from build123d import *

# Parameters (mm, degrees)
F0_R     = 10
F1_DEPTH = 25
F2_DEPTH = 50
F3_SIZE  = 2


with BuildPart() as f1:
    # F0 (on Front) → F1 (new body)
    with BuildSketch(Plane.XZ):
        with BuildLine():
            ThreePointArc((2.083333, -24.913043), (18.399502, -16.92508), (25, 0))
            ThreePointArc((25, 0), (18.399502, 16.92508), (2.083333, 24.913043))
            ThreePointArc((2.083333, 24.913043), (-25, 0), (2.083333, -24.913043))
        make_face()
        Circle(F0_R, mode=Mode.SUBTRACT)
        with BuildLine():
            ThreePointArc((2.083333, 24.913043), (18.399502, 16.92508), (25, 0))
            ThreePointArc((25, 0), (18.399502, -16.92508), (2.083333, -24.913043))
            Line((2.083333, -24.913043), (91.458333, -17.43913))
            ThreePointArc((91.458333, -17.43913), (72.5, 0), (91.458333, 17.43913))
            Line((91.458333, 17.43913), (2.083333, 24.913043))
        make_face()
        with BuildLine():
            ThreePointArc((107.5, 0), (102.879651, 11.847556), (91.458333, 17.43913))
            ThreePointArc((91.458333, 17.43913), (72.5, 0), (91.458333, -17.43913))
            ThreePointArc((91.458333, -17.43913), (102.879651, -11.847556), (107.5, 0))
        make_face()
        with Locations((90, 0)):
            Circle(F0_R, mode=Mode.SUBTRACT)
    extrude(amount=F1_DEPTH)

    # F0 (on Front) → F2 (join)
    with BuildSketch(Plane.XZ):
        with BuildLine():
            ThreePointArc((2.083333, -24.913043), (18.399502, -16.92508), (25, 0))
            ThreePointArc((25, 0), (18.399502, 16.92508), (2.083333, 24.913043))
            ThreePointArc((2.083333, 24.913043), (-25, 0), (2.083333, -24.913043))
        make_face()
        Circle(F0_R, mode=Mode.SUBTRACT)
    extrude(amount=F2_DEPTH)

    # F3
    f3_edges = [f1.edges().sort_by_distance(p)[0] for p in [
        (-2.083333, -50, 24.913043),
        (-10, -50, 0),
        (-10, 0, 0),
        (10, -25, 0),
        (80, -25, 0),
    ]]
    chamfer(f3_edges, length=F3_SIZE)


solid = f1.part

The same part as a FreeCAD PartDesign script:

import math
import FreeCAD as App
import Part
import Sketcher
from FreeCAD import Vector
Q = App.Units.Quantity


def edges_at(feature, points):
    """Names of the edges that pass closest to the given points."""
    edges = feature.Shape.Edges
    near = lambda p: min(range(len(edges)), key=lambda i: edges[i].distToShape(Part.Vertex(*p))[0])
    return sorted({f"Edge{near(p) + 1}" for p in points})

doc = App.newDocument("Part")
body = doc.addObject("PartDesign::Body", "Body")

# Sketch on XZ plane
sketch1 = body.newObject("Sketcher::SketchObject", "Sketch")
sketch1.AttachmentSupport = (doc.getObject("XZ_Plane"), [""])
sketch1.MapMode = "FlatFace"
sketch1.addGeometry(Part.ArcOfCircle(Part.Circle(Vector(0, 0, 0), Vector(0, 0, 1), 25), math.radians(85), math.radians(275)), False)
sketch1.addGeometry(Part.LineSegment(Vector(2, -25, 0), Vector(91, -17, 0)), False)
sketch1.addGeometry(Part.ArcOfCircle(Part.Circle(Vector(90, 0, 0), Vector(0, 0, 1), 18), math.radians(-85), math.radians(0)), False)
sketch1.addGeometry(Part.ArcOfCircle(Part.Circle(Vector(90, 0, 0), Vector(0, 0, 1), 18), math.radians(0), math.radians(85)), False)
sketch1.addGeometry(Part.LineSegment(Vector(91, 17, 0), Vector(2, 25, 0)), False)
sketch1.addGeometry(Part.Circle(Vector(0, 0, 0), Vector(0, 0, 1), 10), False)
sketch1.addGeometry(Part.Circle(Vector(90, 0, 0), Vector(0, 0, 1), 10), False)
sketch1.addConstraint(Sketcher.Constraint("Tangent", 0, 2, 1, 1))
sketch1.addConstraint(Sketcher.Constraint("Tangent", 1, 2, 2, 1))
sketch1.addConstraint(Sketcher.Constraint("Tangent", 2, 2, 3, 1))
sketch1.addConstraint(Sketcher.Constraint("Tangent", 3, 2, 4, 1))
sketch1.addConstraint(Sketcher.Constraint("Tangent", 4, 2, 0, 1))
sketch1.addConstraint(Sketcher.Constraint("Coincident", 0, 3, -1, 1))
sketch1.addConstraint(Sketcher.Constraint("Coincident", 5, 3, -1, 1))
sketch1.addConstraint(Sketcher.Constraint("Coincident", 6, 3, 2, 3))
sketch1.addConstraint(Sketcher.Constraint("Equal", 2, 3))
sketch1.addConstraint(Sketcher.Constraint("Equal", 5, 6))
sketch1.addConstraint(Sketcher.Constraint("PointOnObject", 2, 3, -1))
sketch1.addConstraint(Sketcher.Constraint("PointOnObject", 2, 2, -1))
sketch1.addConstraint(Sketcher.Constraint("Diameter", 5, Q("20 mm")))
sketch1.addConstraint(Sketcher.Constraint("Radius", 0, Q("25 mm")))
sketch1.addConstraint(Sketcher.Constraint("Radius", 2, Q("17.5 mm")))
sketch1.addConstraint(Sketcher.Constraint("DistanceX", -1, 1, 2, 3, Q("90 mm")))
pad1 = body.newObject("PartDesign::Pad", "Pad")
pad1.Profile = sketch1
pad1.Length = 25

# Sketch on XZ plane
sketch2 = body.newObject("Sketcher::SketchObject", "Sketch001")
sketch2.AttachmentSupport = (doc.getObject("XZ_Plane"), [""])
sketch2.MapMode = "FlatFace"
sketch2.addGeometry(Part.ArcOfCircle(Part.Circle(Vector(0, 0, 0), Vector(0, 0, 1), 25), math.radians(-85), math.radians(0)), False)
sketch2.addGeometry(Part.ArcOfCircle(Part.Circle(Vector(0, 0, 0), Vector(0, 0, 1), 25), math.radians(0), math.radians(85)), False)
sketch2.addGeometry(Part.ArcOfCircle(Part.Circle(Vector(0, 0, 0), Vector(0, 0, 1), 25), math.radians(85), math.radians(275)), False)
sketch2.addGeometry(Part.Circle(Vector(0, 0, 0), Vector(0, 0, 1), 10), False)
sketch2.addConstraint(Sketcher.Constraint("Tangent", 0, 2, 1, 1))
sketch2.addConstraint(Sketcher.Constraint("Tangent", 1, 2, 2, 1))
sketch2.addConstraint(Sketcher.Constraint("Tangent", 2, 2, 0, 1))
sketch2.addConstraint(Sketcher.Constraint("Coincident", 0, 3, -1, 1))
sketch2.addConstraint(Sketcher.Constraint("Coincident", 3, 3, -1, 1))
sketch2.addConstraint(Sketcher.Constraint("PointOnObject", 0, 2, -1))
sketch2.addConstraint(Sketcher.Constraint("Vertical", 1, 2, 2, 2))
sketch2.addConstraint(Sketcher.Constraint("Diameter", 3, Q("20 mm")))
sketch2.addConstraint(Sketcher.Constraint("Radius", 0, Q("24.999999 mm")))
sketch2.addConstraint(Sketcher.Constraint("DistanceX", -1, 1, 1, 2, Q("2.083333 mm")))
pad2 = body.newObject("PartDesign::Pad", "Pad001")
pad2.Profile = sketch2
pad2.Length = 50
doc.recompute()

chamfer = body.newObject("PartDesign::Chamfer", "Chamfer")
chamfer.Base = (pad2, edges_at(pad2, [
    (-25, -50, 0),
    (-10, -50, 0),
    (-10, 0, 0),
    (10, -25, 0),
    (80, -25, 0),
]))
chamfer.Size = 2

doc.recompute()
